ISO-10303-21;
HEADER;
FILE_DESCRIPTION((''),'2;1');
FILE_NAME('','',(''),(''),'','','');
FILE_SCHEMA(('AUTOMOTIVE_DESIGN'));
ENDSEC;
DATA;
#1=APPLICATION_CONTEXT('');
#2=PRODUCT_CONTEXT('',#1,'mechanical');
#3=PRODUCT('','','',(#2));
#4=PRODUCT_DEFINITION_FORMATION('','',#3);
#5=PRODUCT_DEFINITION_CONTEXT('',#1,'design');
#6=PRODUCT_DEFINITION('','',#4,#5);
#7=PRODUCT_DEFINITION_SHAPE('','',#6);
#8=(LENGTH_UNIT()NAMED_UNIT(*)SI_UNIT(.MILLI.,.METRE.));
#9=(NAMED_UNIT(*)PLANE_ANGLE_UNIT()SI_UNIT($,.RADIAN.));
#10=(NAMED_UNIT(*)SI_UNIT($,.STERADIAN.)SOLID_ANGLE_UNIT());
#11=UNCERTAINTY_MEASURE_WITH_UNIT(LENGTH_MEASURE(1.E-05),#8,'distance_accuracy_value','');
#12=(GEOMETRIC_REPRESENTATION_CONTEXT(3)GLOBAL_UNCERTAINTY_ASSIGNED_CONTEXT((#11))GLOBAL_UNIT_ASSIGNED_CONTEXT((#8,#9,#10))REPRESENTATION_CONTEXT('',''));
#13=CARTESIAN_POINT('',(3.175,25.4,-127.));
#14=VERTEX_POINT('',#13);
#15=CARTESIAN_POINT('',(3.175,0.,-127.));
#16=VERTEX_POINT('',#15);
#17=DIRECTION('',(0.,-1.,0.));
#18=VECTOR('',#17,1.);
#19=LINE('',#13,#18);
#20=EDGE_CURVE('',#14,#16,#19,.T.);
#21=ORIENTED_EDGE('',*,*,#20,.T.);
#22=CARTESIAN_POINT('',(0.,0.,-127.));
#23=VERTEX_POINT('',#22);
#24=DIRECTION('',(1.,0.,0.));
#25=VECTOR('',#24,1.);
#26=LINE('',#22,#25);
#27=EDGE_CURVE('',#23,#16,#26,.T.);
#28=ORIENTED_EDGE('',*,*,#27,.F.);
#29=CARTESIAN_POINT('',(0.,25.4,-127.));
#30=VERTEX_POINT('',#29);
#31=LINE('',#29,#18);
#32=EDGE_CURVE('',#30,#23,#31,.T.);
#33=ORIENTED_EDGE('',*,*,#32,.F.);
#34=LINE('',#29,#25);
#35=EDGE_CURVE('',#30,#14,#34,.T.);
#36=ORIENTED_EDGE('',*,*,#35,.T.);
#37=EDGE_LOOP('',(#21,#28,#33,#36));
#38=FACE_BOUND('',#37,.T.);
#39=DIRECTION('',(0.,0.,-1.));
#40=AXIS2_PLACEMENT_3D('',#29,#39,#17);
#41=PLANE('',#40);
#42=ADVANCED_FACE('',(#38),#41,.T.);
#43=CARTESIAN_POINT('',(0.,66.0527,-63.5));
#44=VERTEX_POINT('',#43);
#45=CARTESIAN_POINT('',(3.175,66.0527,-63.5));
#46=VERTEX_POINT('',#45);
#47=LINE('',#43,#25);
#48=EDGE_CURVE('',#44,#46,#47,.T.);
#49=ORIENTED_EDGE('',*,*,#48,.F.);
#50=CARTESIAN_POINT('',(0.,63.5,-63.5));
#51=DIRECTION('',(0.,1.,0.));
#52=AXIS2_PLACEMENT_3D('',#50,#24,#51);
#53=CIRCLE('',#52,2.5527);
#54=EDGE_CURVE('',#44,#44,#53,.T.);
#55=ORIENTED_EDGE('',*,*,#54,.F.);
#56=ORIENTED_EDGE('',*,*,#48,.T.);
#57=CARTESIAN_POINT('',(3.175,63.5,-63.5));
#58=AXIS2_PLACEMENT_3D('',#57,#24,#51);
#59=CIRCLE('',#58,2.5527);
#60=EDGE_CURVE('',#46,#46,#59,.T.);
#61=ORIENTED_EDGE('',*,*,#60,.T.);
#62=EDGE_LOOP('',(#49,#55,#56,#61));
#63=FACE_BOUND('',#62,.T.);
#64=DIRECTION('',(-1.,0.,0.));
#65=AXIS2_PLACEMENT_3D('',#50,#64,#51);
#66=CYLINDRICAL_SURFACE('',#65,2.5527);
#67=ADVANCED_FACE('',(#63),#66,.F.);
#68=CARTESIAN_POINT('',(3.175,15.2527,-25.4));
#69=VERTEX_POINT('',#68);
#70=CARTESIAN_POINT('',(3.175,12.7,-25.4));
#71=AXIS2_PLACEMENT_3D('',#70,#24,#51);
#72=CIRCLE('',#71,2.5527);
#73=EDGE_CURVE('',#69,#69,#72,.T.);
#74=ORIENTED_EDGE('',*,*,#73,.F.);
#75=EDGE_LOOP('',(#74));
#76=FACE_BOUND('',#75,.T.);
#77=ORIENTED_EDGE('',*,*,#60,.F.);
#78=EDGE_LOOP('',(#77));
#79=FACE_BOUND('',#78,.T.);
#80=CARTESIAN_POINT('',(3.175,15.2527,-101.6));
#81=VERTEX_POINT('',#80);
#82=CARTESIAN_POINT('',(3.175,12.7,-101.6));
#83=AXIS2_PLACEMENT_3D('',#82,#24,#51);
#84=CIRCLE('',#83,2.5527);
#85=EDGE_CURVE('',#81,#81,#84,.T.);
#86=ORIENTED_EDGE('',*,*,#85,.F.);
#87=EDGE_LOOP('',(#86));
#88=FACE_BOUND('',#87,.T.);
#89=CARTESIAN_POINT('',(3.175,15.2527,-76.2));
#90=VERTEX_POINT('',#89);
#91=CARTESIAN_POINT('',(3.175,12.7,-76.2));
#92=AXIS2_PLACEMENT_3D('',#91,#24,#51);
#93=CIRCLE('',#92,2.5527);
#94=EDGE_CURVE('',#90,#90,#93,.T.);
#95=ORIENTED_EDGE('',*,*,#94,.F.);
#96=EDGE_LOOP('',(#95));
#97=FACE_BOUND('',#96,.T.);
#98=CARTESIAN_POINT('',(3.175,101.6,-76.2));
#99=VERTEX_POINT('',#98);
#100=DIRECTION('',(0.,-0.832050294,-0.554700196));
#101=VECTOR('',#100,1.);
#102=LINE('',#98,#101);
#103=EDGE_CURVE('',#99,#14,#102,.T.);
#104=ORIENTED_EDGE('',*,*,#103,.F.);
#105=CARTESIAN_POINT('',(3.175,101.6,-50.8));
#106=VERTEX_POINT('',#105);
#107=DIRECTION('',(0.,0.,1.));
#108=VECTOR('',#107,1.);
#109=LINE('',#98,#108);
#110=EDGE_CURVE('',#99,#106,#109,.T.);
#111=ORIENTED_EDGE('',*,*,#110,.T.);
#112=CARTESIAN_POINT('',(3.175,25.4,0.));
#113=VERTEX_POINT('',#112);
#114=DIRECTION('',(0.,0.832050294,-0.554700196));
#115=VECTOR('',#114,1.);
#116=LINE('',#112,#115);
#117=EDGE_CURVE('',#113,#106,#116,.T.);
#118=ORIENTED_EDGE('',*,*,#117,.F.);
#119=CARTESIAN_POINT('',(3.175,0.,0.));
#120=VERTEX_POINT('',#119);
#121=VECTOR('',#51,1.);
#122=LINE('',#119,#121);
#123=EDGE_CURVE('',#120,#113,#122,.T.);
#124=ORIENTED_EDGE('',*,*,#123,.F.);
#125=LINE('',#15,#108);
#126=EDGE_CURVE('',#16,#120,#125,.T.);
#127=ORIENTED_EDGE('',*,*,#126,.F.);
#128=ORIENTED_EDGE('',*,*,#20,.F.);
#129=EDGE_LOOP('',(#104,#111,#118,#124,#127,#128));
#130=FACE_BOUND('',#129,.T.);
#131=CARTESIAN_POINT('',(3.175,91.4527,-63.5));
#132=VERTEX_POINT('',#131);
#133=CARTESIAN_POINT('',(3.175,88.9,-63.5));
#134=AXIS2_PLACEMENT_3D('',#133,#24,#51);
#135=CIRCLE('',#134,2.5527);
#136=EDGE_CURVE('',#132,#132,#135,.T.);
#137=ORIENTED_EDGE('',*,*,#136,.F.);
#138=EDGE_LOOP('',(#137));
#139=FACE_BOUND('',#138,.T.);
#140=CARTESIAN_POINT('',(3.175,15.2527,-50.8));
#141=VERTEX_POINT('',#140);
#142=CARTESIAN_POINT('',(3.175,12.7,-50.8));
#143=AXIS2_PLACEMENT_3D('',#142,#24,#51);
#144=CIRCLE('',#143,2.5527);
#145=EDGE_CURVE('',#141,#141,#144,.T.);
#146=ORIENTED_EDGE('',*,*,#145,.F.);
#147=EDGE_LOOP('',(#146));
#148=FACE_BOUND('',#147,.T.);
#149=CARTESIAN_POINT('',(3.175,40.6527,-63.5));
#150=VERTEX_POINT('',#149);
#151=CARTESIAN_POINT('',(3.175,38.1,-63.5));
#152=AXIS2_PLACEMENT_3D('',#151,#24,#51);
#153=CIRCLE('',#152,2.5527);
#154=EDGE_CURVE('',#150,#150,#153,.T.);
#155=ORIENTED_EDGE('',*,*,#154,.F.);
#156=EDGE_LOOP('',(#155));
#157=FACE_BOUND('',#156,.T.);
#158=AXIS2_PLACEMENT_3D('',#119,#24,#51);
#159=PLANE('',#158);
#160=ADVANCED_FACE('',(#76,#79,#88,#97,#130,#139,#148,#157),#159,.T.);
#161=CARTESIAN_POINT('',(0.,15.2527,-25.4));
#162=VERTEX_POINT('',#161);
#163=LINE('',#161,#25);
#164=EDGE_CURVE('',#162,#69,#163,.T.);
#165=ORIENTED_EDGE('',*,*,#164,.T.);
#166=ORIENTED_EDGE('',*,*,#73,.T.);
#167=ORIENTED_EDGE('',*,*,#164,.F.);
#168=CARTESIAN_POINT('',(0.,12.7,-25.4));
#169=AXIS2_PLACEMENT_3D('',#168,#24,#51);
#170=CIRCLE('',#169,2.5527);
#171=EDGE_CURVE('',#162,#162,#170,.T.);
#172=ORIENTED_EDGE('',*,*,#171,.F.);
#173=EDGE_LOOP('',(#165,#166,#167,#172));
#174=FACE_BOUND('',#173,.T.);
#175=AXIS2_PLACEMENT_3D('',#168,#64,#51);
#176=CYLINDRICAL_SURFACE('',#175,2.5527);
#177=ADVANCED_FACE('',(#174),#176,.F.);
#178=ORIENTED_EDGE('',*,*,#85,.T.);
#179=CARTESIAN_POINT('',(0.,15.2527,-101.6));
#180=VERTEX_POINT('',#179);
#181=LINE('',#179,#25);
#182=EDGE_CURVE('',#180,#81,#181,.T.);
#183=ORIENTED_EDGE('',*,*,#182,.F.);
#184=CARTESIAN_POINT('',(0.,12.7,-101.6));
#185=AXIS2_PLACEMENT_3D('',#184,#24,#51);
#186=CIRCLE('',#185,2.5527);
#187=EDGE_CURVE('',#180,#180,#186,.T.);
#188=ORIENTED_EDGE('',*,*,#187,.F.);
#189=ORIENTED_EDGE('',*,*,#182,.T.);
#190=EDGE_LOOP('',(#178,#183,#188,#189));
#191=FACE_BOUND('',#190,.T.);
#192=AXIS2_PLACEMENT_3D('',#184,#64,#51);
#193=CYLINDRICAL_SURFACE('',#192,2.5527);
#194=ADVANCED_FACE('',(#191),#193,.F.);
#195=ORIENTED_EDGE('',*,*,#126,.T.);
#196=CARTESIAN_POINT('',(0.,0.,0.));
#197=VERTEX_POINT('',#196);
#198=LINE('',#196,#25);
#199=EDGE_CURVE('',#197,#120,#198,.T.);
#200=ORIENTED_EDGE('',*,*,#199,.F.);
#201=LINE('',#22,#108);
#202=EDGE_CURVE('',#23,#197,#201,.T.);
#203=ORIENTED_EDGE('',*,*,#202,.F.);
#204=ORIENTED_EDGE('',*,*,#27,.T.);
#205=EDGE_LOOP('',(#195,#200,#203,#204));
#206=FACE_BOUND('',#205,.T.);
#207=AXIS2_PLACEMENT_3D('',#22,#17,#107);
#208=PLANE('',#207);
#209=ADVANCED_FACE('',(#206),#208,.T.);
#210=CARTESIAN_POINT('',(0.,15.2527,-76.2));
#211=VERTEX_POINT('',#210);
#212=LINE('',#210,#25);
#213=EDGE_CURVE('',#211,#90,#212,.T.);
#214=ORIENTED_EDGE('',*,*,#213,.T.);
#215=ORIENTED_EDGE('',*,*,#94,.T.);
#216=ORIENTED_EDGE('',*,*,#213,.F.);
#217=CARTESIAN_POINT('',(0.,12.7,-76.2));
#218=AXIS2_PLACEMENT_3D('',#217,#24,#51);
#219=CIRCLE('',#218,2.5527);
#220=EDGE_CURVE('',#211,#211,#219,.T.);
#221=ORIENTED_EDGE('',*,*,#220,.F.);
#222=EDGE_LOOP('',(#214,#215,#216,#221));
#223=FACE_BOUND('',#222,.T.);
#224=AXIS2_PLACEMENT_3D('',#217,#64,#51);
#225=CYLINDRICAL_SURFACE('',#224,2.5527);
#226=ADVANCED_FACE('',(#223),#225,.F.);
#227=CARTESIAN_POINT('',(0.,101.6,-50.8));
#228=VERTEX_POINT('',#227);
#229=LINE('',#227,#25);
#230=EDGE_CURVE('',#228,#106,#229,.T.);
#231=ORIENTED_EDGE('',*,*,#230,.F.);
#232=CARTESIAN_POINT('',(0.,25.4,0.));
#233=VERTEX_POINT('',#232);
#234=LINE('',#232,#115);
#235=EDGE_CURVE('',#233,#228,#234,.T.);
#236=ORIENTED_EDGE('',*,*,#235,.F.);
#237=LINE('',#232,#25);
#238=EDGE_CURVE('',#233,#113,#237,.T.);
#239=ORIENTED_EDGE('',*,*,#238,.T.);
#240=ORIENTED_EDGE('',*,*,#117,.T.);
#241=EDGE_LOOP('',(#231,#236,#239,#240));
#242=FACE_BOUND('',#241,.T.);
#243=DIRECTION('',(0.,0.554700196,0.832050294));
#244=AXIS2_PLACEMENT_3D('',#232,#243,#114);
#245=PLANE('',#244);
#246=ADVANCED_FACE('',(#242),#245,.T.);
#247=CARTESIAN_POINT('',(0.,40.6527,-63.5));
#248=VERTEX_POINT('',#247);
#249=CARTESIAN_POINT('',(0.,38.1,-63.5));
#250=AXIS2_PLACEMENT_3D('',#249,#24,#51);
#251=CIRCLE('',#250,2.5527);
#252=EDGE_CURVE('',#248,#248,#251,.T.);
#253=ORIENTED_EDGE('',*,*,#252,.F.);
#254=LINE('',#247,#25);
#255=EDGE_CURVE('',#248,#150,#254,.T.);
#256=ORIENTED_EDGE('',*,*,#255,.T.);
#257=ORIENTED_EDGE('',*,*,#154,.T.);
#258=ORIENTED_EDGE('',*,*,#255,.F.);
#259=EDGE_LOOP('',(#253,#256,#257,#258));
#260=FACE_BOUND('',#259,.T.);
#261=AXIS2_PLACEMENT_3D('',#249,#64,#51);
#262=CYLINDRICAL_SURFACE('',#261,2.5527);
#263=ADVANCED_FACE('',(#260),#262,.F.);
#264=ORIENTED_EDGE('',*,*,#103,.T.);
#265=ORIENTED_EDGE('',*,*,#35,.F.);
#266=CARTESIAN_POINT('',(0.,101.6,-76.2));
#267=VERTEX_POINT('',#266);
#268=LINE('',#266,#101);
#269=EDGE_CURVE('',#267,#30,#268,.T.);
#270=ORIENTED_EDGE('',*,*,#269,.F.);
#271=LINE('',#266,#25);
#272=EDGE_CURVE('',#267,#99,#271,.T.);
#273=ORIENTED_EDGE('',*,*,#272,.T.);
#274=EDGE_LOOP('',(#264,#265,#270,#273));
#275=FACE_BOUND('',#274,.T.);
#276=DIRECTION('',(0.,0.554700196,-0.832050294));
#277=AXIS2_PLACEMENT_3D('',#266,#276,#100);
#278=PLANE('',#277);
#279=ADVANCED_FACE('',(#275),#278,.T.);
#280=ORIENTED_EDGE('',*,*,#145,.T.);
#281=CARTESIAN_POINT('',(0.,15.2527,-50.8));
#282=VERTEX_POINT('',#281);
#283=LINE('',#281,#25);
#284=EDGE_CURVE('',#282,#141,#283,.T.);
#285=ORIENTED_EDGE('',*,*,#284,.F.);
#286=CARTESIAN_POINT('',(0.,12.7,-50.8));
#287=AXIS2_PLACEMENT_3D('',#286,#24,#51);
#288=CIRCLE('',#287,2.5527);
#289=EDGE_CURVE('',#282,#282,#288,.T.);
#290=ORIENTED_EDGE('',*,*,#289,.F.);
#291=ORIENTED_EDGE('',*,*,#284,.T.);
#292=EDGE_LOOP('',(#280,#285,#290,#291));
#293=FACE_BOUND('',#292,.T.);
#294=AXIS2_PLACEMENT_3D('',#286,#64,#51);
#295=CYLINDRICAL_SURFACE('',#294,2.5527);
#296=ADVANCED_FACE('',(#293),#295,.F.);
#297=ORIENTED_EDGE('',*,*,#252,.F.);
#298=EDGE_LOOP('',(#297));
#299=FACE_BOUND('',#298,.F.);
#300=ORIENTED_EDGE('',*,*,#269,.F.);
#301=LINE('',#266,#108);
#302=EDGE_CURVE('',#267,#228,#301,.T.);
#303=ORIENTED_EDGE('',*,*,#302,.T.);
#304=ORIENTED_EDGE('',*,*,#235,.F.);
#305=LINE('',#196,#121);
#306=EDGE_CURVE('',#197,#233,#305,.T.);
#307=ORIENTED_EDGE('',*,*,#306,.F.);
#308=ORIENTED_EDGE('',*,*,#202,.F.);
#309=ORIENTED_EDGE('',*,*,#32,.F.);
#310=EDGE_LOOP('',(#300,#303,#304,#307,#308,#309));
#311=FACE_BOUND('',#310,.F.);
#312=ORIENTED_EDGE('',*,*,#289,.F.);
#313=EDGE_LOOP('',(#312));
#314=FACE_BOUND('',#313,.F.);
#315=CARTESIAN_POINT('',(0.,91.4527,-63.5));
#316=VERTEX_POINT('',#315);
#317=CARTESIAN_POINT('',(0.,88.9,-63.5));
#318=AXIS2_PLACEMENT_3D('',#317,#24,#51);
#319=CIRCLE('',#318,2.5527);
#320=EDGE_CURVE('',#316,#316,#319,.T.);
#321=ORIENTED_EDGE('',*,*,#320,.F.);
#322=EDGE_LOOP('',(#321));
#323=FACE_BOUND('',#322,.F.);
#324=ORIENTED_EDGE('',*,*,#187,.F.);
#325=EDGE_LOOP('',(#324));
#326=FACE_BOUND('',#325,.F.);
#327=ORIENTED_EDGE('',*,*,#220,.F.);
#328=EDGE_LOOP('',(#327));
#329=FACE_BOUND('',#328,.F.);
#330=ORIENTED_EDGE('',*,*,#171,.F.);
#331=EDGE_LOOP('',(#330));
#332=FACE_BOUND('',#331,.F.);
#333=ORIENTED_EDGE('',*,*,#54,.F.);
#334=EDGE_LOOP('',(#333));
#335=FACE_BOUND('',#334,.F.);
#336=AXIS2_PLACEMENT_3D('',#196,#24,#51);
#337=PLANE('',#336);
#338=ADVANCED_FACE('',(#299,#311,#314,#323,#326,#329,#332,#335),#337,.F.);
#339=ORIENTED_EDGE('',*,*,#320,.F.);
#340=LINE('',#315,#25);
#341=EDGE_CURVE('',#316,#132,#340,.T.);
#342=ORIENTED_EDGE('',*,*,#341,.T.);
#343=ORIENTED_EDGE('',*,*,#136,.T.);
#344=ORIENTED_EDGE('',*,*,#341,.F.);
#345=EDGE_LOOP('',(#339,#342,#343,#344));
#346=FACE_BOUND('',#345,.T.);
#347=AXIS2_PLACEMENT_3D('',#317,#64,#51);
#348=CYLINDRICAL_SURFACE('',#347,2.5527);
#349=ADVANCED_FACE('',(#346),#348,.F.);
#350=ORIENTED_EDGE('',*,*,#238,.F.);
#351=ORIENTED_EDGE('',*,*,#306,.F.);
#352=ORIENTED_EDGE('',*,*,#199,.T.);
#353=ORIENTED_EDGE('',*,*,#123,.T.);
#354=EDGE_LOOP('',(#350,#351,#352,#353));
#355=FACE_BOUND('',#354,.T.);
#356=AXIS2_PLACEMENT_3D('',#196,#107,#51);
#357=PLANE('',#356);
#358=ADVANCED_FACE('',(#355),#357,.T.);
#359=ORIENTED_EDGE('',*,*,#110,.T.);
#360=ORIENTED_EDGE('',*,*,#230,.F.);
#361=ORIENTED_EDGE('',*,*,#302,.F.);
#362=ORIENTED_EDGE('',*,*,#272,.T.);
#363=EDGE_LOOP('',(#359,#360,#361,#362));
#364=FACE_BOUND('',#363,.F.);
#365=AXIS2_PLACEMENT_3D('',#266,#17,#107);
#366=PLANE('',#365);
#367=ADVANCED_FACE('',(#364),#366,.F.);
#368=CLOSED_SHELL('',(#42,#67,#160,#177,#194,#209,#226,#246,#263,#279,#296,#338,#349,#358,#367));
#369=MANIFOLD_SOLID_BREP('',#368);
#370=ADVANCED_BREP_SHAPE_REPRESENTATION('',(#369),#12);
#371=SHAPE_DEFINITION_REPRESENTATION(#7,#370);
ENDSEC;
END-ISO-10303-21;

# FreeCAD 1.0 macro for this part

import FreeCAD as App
import Part
import Sketcher
from FreeCAD import Vector
Q = App.Units.Quantity

doc = App.newDocument("Part")
body = doc.addObject("PartDesign::Body", "Body")

sketch1 = body.newObject("Sketcher::SketchObject", "Sketch")
sketch1.AttachmentSupport = (doc.getObject("YZ_Plane"), [""])
sketch1.MapMode = "FlatFace"
sketch1.addGeometry(Part.LineSegment(Vector(25.4, 0, 0), Vector(0, 0, 0)), False)
sketch1.addGeometry(Part.LineSegment(Vector(0, 0, 0), Vector(0, -127, 0)), False)
sketch1.addGeometry(Part.LineSegment(Vector(0, -127, 0), Vector(25.4, -127, 0)), False)
sketch1.addGeometry(Part.LineSegment(Vector(25.4, -127, 0), Vector(101.6, -76.2, 0)), False)
sketch1.addGeometry(Part.LineSegment(Vector(101.6, -76.2, 0), Vector(101.6, -50.8, 0)), False)
sketch1.addGeometry(Part.LineSegment(Vector(101.6, -50.8, 0), Vector(25.4, 0, 0)), False)
sketch1.addGeometry(Part.Circle(Vector(12.7, -101.6, 0), Vector(0, 0, 1), 2.5527), False)
sketch1.addGeometry(Part.Circle(Vector(12.7, -76.2, 0), Vector(0, 0, 1), 2.5527), False)
sketch1.addGeometry(Part.Circle(Vector(12.7, -50.8, 0), Vector(0, 0, 1), 2.5527), False)
sketch1.addGeometry(Part.Circle(Vector(12.7, -25.4, 0), Vector(0, 0, 1), 2.5527), False)
sketch1.addGeometry(Part.Circle(Vector(63.5, -63.5, 0), Vector(0, 0, 1), 2.5527), False)
sketch1.addGeometry(Part.Circle(Vector(88.9, -63.5, 0), Vector(0, 0, 1), 2.5527), False)
sketch1.addGeometry(Part.Circle(Vector(38.1, -63.5, 0), Vector(0, 0, 1), 2.5527), False)
sketch1.addConstraint(Sketcher.Constraint("Coincident", 0, 2, 1, 1))
sketch1.addConstraint(Sketcher.Constraint("Coincident", 1, 2, 2, 1))
sketch1.addConstraint(Sketcher.Constraint("Coincident", 2, 2, 3, 1))
sketch1.addConstraint(Sketcher.Constraint("Coincident", 3, 2, 4, 1))
sketch1.addConstraint(Sketcher.Constraint("Coincident", 4, 2, 5, 1))
sketch1.addConstraint(Sketcher.Constraint("Coincident", 5, 2, 0, 1))
sketch1.addConstraint(Sketcher.Constraint("Horizontal", 0))
sketch1.addConstraint(Sketcher.Constraint("Vertical", 1))
sketch1.addConstraint(Sketcher.Constraint("Horizontal", 2))
sketch1.addConstraint(Sketcher.Constraint("Vertical", 4))
sketch1.addConstraint(Sketcher.Constraint("Coincident", 0, 2, -1, 1))
sketch1.addConstraint(Sketcher.Constraint("Equal", 6, 7))
sketch1.addConstraint(Sketcher.Constraint("Equal", 7, 8))
sketch1.addConstraint(Sketcher.Constraint("Equal", 8, 9))
sketch1.addConstraint(Sketcher.Constraint("Equal", 9, 10))
sketch1.addConstraint(Sketcher.Constraint("Equal", 10, 11))
sketch1.addConstraint(Sketcher.Constraint("Equal", 11, 12))
sketch1.addConstraint(Sketcher.Constraint("Horizontal", 10, 3, 11, 3))
sketch1.addConstraint(Sketcher.Constraint("Horizontal", 11, 3, 12, 3))
sketch1.addConstraint(Sketcher.Constraint("Horizontal", 7, 3, 3, 2))
sketch1.addConstraint(Sketcher.Constraint("Horizontal", 8, 3, 4, 2))
sketch1.addConstraint(Sketcher.Constraint("Vertical", 6, 3, 7, 3))
sketch1.addConstraint(Sketcher.Constraint("Vertical", 7, 3, 8, 3))
sketch1.addConstraint(Sketcher.Constraint("Vertical", 8, 3, 9, 3))
sketch1.addConstraint(Sketcher.Constraint("Vertical", 2, 2, 5, 2))
sketch1.addConstraint(Sketcher.Constraint("Equal", 2, 4))
sketch1.addConstraint(Sketcher.Constraint("Equal", 3, 5))
sketch1.addConstraint(Sketcher.Constraint("DistanceX", 0, 2, 0, 1, Q("1 in")))
sketch1.addConstraint(Sketcher.Constraint("DistanceY", 1, 2, 1, 1, Q("5 in")))
sketch1.addConstraint(Sketcher.Constraint("Diameter", 6, Q("0.201 in")))
sketch1.addConstraint(Sketcher.Constraint("DistanceY", 9, 3, -1, 1, Q("1 in")))
sketch1.addConstraint(Sketcher.Constraint("DistanceY", 6, 3, 7, 3, Q("1 in")))
sketch1.addConstraint(Sketcher.Constraint("DistanceX", 10, 3, 11, 3, Q("1 in")))
sketch1.addConstraint(Sketcher.Constraint("DistanceX", 7, 3, 11, 3, Q("3 in")))
sketch1.addConstraint(Sketcher.Constraint("DistanceX", 12, 3, 10, 3, Q("1 in")))
sketch1.addConstraint(Sketcher.Constraint("DistanceX", 2, 2, 3, 2, Q("3 in")))
sketch1.addConstraint(Sketcher.Constraint("DistanceX", -1, 1, 6, 3, Q("0.5 in")))
sketch1.addConstraint(Sketcher.Constraint("DistanceY", 7, 3, 10, 3, Q("0.5 in")))
pad1 = body.newObject("PartDesign::Pad", "Pad")
pad1.Profile = sketch1
pad1.Length = Q("0.125 in")

doc.recompute()
